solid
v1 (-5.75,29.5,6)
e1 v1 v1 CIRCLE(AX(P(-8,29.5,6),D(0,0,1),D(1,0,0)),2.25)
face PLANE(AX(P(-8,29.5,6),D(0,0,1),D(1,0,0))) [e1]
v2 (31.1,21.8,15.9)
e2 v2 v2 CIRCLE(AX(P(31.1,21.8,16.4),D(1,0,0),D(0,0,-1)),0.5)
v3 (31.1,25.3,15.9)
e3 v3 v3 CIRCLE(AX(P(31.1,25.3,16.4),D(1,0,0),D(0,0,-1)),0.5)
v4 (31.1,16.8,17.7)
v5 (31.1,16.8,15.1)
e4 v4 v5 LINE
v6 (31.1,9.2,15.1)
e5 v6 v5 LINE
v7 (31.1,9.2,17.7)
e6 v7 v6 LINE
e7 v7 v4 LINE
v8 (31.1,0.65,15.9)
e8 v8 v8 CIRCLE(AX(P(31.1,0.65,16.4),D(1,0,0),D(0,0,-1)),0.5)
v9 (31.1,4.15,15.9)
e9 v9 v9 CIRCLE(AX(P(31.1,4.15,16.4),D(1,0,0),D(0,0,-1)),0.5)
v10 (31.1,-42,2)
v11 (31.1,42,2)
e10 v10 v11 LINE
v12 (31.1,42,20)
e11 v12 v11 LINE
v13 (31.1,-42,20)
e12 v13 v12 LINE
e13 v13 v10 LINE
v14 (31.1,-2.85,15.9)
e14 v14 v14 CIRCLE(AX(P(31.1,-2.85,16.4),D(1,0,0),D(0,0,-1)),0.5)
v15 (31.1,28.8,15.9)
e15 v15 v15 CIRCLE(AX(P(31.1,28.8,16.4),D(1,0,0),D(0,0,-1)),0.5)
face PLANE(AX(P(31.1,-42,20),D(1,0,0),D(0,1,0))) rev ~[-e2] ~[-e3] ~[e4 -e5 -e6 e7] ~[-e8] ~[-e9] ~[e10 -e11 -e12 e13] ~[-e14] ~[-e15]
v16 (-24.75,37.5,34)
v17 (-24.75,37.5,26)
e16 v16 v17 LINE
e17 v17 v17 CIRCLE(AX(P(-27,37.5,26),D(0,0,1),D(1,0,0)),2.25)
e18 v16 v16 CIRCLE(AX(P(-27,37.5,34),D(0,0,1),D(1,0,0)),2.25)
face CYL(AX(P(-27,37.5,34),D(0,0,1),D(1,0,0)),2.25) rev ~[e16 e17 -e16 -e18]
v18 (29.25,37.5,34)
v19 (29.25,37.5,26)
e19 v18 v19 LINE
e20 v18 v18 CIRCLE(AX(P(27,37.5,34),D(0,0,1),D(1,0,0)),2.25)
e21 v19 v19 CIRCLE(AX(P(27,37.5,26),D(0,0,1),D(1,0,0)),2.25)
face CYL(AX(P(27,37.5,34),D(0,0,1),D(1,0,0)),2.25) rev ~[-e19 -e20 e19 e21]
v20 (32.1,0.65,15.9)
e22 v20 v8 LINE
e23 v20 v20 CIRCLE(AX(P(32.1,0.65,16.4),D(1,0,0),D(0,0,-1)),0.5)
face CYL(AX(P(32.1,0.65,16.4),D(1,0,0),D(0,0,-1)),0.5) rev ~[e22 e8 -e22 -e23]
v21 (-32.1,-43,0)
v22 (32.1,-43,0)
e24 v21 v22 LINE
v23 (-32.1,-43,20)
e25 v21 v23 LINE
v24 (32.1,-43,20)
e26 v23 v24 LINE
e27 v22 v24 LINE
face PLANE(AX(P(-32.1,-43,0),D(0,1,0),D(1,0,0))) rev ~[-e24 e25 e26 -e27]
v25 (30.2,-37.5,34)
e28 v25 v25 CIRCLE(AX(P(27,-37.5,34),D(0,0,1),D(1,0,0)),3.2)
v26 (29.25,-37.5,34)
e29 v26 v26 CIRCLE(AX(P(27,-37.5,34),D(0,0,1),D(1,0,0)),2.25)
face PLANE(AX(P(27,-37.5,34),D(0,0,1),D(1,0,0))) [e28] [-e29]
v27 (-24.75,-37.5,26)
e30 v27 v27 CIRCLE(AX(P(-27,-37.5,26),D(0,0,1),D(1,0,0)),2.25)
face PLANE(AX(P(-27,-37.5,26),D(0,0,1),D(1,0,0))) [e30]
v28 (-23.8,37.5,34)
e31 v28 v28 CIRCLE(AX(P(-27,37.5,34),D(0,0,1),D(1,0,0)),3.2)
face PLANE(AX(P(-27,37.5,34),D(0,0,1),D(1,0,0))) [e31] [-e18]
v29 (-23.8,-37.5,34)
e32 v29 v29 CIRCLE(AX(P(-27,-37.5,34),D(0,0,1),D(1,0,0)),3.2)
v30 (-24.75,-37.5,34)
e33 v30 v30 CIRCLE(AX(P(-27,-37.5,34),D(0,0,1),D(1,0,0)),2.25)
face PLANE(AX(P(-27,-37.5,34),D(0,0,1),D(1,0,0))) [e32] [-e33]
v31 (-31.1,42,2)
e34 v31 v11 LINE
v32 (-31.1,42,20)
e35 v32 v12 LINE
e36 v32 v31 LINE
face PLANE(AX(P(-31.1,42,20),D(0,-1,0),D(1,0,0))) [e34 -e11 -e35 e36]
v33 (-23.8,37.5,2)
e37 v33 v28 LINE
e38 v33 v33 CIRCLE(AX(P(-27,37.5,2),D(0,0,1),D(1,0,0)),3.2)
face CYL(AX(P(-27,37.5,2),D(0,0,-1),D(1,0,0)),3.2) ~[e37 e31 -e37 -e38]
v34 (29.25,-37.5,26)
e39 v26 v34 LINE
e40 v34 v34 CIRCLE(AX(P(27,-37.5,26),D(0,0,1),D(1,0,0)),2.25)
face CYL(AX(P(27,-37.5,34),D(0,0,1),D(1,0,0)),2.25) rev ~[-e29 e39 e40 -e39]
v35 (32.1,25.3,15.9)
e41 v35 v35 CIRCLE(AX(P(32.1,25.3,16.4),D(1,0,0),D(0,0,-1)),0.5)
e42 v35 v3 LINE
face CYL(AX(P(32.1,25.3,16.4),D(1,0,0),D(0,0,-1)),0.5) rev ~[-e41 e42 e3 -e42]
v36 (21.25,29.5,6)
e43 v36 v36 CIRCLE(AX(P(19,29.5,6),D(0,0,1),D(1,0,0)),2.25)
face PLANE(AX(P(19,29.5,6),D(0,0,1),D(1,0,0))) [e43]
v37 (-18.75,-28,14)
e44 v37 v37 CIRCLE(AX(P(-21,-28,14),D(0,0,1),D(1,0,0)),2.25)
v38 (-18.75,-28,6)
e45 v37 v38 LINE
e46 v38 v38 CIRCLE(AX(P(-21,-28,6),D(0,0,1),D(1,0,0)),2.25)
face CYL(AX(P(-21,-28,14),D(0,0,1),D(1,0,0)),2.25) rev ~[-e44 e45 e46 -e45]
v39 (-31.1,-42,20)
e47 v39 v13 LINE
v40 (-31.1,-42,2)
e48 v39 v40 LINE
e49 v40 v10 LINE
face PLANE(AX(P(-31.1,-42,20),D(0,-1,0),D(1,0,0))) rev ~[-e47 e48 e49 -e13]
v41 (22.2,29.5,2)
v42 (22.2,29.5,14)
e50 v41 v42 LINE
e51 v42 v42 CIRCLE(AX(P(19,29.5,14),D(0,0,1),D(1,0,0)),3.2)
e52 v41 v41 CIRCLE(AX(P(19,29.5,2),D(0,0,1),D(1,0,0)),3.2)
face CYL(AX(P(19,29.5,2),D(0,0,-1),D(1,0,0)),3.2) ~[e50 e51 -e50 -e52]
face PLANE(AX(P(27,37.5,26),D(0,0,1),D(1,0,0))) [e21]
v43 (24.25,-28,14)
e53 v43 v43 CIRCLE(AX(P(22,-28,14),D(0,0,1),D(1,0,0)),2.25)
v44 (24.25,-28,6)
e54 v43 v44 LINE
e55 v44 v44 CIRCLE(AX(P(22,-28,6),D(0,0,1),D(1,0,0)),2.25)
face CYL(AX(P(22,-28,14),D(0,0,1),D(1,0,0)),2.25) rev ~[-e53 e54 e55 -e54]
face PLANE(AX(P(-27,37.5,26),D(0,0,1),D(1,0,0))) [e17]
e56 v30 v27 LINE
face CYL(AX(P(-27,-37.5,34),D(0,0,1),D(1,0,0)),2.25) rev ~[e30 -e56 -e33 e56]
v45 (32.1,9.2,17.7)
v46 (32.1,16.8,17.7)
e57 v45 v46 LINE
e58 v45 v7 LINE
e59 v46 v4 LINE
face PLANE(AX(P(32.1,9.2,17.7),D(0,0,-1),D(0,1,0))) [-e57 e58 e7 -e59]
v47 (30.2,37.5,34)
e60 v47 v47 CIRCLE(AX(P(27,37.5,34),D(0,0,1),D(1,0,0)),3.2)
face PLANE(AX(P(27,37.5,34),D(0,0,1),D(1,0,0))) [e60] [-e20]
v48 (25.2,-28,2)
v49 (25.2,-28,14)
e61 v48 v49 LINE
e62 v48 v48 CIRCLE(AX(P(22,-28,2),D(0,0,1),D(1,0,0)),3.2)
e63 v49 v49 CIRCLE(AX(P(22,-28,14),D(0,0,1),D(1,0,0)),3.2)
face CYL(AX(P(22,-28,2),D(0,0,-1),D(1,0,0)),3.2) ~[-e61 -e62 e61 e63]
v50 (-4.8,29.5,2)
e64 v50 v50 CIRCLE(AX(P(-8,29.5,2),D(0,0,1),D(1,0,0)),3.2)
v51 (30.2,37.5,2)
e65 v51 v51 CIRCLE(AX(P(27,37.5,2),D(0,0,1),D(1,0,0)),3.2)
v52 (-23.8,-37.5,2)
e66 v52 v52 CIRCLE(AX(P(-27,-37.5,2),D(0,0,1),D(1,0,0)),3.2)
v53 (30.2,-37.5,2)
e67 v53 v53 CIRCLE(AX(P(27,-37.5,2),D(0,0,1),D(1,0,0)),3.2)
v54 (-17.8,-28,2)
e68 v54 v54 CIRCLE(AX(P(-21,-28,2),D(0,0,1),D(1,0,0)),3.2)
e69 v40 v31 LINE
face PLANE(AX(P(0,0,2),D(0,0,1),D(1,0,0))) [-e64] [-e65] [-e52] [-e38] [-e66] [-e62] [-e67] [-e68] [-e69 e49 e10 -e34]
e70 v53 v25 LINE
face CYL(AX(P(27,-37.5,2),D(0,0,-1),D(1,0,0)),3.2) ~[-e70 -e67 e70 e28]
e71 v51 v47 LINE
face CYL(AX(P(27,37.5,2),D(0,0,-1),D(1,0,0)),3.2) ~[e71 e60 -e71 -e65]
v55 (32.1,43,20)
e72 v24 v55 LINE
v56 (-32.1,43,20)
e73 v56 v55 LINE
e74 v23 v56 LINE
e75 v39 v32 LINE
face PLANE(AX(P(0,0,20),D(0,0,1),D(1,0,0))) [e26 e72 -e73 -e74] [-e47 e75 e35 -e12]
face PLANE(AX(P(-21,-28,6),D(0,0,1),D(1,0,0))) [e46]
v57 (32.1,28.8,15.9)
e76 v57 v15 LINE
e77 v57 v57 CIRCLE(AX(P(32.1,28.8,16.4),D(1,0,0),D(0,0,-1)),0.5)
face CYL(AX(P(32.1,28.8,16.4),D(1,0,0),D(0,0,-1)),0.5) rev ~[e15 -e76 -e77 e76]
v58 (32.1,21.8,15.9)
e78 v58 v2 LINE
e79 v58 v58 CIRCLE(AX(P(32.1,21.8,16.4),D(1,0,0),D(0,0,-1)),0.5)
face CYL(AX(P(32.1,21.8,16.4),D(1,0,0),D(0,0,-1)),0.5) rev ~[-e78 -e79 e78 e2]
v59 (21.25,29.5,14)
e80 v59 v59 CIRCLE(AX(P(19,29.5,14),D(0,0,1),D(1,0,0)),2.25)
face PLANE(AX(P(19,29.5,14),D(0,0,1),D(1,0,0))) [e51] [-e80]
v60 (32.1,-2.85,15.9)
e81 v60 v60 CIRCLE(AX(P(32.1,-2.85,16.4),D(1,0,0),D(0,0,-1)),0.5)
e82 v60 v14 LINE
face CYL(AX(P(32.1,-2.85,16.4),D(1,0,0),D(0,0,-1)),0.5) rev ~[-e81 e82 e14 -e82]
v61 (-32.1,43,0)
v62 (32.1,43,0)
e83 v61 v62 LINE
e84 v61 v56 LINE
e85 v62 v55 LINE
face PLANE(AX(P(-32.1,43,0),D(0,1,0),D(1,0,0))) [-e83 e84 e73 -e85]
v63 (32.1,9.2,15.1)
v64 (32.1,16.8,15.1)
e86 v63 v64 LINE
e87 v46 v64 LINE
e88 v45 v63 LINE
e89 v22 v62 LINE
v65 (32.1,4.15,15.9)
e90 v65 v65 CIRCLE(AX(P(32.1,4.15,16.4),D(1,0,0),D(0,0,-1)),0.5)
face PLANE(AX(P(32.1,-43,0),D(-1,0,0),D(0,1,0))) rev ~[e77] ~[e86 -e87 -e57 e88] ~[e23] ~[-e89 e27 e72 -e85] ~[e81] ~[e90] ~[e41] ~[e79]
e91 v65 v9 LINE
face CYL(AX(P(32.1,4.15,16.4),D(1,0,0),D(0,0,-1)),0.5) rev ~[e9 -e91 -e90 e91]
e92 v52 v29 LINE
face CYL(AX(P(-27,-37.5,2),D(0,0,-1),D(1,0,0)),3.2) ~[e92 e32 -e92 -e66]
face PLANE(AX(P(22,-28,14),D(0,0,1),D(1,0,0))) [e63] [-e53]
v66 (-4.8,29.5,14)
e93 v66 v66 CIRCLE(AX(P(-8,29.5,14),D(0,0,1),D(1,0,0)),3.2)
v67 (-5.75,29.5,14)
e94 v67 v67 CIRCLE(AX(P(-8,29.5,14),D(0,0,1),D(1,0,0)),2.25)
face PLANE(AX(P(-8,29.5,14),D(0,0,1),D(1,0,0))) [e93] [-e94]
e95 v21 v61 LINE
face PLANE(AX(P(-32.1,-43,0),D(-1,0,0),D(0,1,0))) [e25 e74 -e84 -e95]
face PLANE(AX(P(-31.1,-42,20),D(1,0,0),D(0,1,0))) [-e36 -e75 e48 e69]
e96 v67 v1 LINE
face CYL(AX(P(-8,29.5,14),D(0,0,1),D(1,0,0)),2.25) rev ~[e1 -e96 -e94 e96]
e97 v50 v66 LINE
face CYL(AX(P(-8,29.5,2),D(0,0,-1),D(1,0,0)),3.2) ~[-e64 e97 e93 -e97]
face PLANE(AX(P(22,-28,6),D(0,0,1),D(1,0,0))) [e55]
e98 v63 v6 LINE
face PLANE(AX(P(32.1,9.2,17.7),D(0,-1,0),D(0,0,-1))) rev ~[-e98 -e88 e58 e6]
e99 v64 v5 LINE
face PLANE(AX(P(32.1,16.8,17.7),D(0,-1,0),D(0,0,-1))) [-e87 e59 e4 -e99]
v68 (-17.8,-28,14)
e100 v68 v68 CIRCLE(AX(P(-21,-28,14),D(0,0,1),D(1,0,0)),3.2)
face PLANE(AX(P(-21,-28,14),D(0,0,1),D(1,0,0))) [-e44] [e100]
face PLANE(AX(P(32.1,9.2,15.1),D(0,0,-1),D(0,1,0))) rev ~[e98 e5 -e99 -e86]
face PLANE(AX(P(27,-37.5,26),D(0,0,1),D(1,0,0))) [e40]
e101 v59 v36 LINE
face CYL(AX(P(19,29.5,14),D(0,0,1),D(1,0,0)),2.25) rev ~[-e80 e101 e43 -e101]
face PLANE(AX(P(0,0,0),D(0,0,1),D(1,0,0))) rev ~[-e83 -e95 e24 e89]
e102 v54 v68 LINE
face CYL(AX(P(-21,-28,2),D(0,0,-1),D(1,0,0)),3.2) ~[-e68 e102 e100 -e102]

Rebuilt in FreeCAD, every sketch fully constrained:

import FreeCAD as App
import Part
import Sketcher
from FreeCAD import Vector
Q = App.Units.Quantity


def add_polygon(sketch, points):
    """Adds a closed chain of lines whose ends are joined by coincident constraints."""
    first, n = sketch.GeometryCount, len(points)
    for a, b in zip(points, points[1:] + points[:1]):
        sketch.addGeometry(Part.LineSegment(App.Vector(*a, 0), App.Vector(*b, 0)), False)
    for i in range(n):
        sketch.addConstraint(Sketcher.Constraint("Coincident", first + i, 2, first + (i + 1) % n, 1))

doc = App.newDocument("Part")
body = doc.addObject("PartDesign::Body", "Body")

# Sketch on XY plane
sketch1 = body.newObject("Sketcher::SketchObject", "Sketch")
sketch1.AttachmentSupport = (doc.getObject("XY_Plane"), [""])
sketch1.MapMode = "FlatFace"
add_polygon(sketch1, [(-32, 43), (-32, -43), (32, -43), (32, 43)])  # lines 0-3
sketch1.addConstraint(Sketcher.Constraint("Vertical", 0))
sketch1.addConstraint(Sketcher.Constraint("Horizontal", 1))
sketch1.addConstraint(Sketcher.Constraint("Vertical", 2))
sketch1.addConstraint(Sketcher.Constraint("Horizontal", 3))
sketch1.addConstraint(Sketcher.Constraint("Symmetric", 0, 2, 2, 2, -1, 1))
sketch1.addConstraint(Sketcher.Constraint("DistanceY", 0, 2, 0, 1, Q("86 mm")))
sketch1.addConstraint(Sketcher.Constraint("DistanceX", 1, 1, 1, 2, Q("64.2 mm")))
pad1 = body.newObject("PartDesign::Pad", "Pad")
pad1.Profile = sketch1
pad1.Length = 20

# Sketch on XY plane
sketch2 = body.newObject("Sketcher::SketchObject", "Sketch001")
sketch2.AttachmentSupport = (doc.getObject("XY_Plane"), [""])
sketch2.MapMode = "FlatFace"
sketch2.AttachmentOffset = App.Placement(Vector(0, 0, 20), App.Rotation())
add_polygon(sketch2, [(-31, 42), (-31, -42), (31, -42), (31, 42)])  # lines 0-3
sketch2.addConstraint(Sketcher.Constraint("Vertical", 0))
sketch2.addConstraint(Sketcher.Constraint("Horizontal", 1))
sketch2.addConstraint(Sketcher.Constraint("Vertical", 2))
sketch2.addConstraint(Sketcher.Constraint("Horizontal", 3))
sketch2.addConstraint(Sketcher.Constraint("Symmetric", 0, 2, 2, 2, -1, 1))
sketch2.addConstraint(Sketcher.Constraint("DistanceY", 0, 2, 0, 1, Q("84 mm")))
sketch2.addConstraint(Sketcher.Constraint("DistanceX", 1, 1, 1, 2, Q("62.2 mm")))
pocket1 = body.newObject("PartDesign::Pocket", "Pocket")
pocket1.Profile = sketch2
pocket1.Length = 18

# Sketch on XY plane
sketch3 = body.newObject("Sketcher::SketchObject", "Sketch002")
sketch3.AttachmentSupport = (doc.getObject("XY_Plane"), [""])
sketch3.MapMode = "FlatFace"
sketch3.AttachmentOffset = App.Placement(Vector(0, 0, 2), App.Rotation())
sketch3.addGeometry(Part.Circle(Vector(-21, -28, 0), Vector(0, 0, 1), 3.2), False)
sketch3.addGeometry(Part.Circle(Vector(22, -28, 0), Vector(0, 0, 1), 3.2), False)
sketch3.addGeometry(Part.Circle(Vector(19, 29.5, 0), Vector(0, 0, 1), 3.2), False)
sketch3.addGeometry(Part.Circle(Vector(-8, 29.5, 0), Vector(0, 0, 1), 3.2), False)
sketch3.addConstraint(Sketcher.Constraint("Equal", 0, 1))
sketch3.addConstraint(Sketcher.Constraint("Equal", 1, 2))
sketch3.addConstraint(Sketcher.Constraint("Equal", 2, 3))
sketch3.addConstraint(Sketcher.Constraint("Horizontal", 0, 3, 1, 3))
sketch3.addConstraint(Sketcher.Constraint("Horizontal", 2, 3, 3, 3))
sketch3.addConstraint(Sketcher.Constraint("Diameter", 0, Q("6.4 mm")))
sketch3.addConstraint(Sketcher.Constraint("DistanceX", 0, 3, -1, 1, Q("21 mm")))
sketch3.addConstraint(Sketcher.Constraint("DistanceY", 0, 3, -1, 1, Q("28 mm")))
sketch3.addConstraint(Sketcher.Constraint("DistanceX", -1, 1, 1, 3, Q("22 mm")))
sketch3.addConstraint(Sketcher.Constraint("DistanceX", -1, 1, 2, 3, Q("19 mm")))
sketch3.addConstraint(Sketcher.Constraint("DistanceX", 3, 3, -1, 1, Q("8 mm")))
sketch3.addConstraint(Sketcher.Constraint("DistanceY", -1, 1, 2, 3, Q("29.5 mm")))
pad2 = body.newObject("PartDesign::Pad", "Pad001")
pad2.Profile = sketch3
pad2.Length = 12

# Sketch on XY plane
sketch4 = body.newObject("Sketcher::SketchObject", "Sketch003")
sketch4.AttachmentSupport = (doc.getObject("XY_Plane"), [""])
sketch4.MapMode = "FlatFace"
sketch4.AttachmentOffset = App.Placement(Vector(0, 0, 14), App.Rotation())
sketch4.addGeometry(Part.Circle(Vector(-21, -28, 0), Vector(0, 0, 1), 2.2), False)
sketch4.addGeometry(Part.Circle(Vector(-8, 29.5, 0), Vector(0, 0, 1), 2.2), False)
sketch4.addGeometry(Part.Circle(Vector(19, 29.5, 0), Vector(0, 0, 1), 2.2), False)
sketch4.addGeometry(Part.Circle(Vector(22, -28, 0), Vector(0, 0, 1), 2.2), False)
sketch4.addConstraint(Sketcher.Constraint("Equal", 0, 1))
sketch4.addConstraint(Sketcher.Constraint("Equal", 1, 2))
sketch4.addConstraint(Sketcher.Constraint("Equal", 2, 3))
sketch4.addConstraint(Sketcher.Constraint("Horizontal", 1, 3, 2, 3))
sketch4.addConstraint(Sketcher.Constraint("Horizontal", 0, 3, 3, 3))
sketch4.addConstraint(Sketcher.Constraint("Diameter", 0, Q("4.5 mm")))
sketch4.addConstraint(Sketcher.Constraint("DistanceX", 0, 3, -1, 1, Q("21 mm")))
sketch4.addConstraint(Sketcher.Constraint("DistanceY", 0, 3, -1, 1, Q("28 mm")))
sketch4.addConstraint(Sketcher.Constraint("DistanceX", 1, 3, -1, 1, Q("8 mm")))
sketch4.addConstraint(Sketcher.Constraint("DistanceX", -1, 1, 2, 3, Q("19 mm")))
sketch4.addConstraint(Sketcher.Constraint("DistanceX", -1, 1, 3, 3, Q("22 mm")))
sketch4.addConstraint(Sketcher.Constraint("DistanceY", -1, 1, 1, 3, Q("29.5 mm")))
pocket2 = body.newObject("PartDesign::Pocket", "Pocket001")
pocket2.Profile = sketch4
pocket2.Length = 8

# Sketch on XY plane
sketch5 = body.newObject("Sketcher::SketchObject", "Sketch004")
sketch5.AttachmentSupport = (doc.getObject("XY_Plane"), [""])
sketch5.MapMode = "FlatFace"
sketch5.AttachmentOffset = App.Placement(Vector(0, 0, 2), App.Rotation())
sketch5.addGeometry(Part.Circle(Vector(-27, -37.5, 0), Vector(0, 0, 1), 3.2), False)
sketch5.addGeometry(Part.Circle(Vector(27, -37.5, 0), Vector(0, 0, 1), 3.2), False)
sketch5.addGeometry(Part.Circle(Vector(-27, 37.5, 0), Vector(0, 0, 1), 3.2), False)
sketch5.addGeometry(Part.Circle(Vector(27, 37.5, 0), Vector(0, 0, 1), 3.2), False)
sketch5.addConstraint(Sketcher.Constraint("Equal", 0, 1))
sketch5.addConstraint(Sketcher.Constraint("Equal", 1, 2))
sketch5.addConstraint(Sketcher.Constraint("Equal", 2, 3))
sketch5.addConstraint(Sketcher.Constraint("Symmetric", 1, 3, 2, 3, -1, 1))
sketch5.addConstraint(Sketcher.Constraint("Symmetric", 0, 3, 3, 3, -1, 1))
sketch5.addConstraint(Sketcher.Constraint("Symmetric", 0, 3, 1, 3, -2))
sketch5.addConstraint(Sketcher.Constraint("Diameter", 0, Q("6.4 mm")))
sketch5.addConstraint(Sketcher.Constraint("DistanceX", 0, 3, -1, 1, Q("27 mm")))
sketch5.addConstraint(Sketcher.Constraint("DistanceY", 0, 3, 2, 3, Q("75 mm")))
pad3 = body.newObject("PartDesign::Pad", "Pad002")
pad3.Profile = sketch5
pad3.Length = 32

# Sketch on XY plane
sketch6 = body.newObject("Sketcher::SketchObject", "Sketch005")
sketch6.AttachmentSupport = (doc.getObject("XY_Plane"), [""])
sketch6.MapMode = "FlatFace"
sketch6.AttachmentOffset = App.Placement(Vector(0, 0, 34), App.Rotation())
sketch6.addGeometry(Part.Circle(Vector(-27, 37.5, 0), Vector(0, 0, 1), 2.2), False)
sketch6.addGeometry(Part.Circle(Vector(27, 37.5, 0), Vector(0, 0, 1), 2.2), False)
sketch6.addGeometry(Part.Circle(Vector(27, -37.5, 0), Vector(0, 0, 1), 2.2), False)
sketch6.addGeometry(Part.Circle(Vector(-27, -37.5, 0), Vector(0, 0, 1), 2.2), False)
sketch6.addConstraint(Sketcher.Constraint("Equal", 0, 1))
sketch6.addConstraint(Sketcher.Constraint("Equal", 1, 2))
sketch6.addConstraint(Sketcher.Constraint("Equal", 2, 3))
sketch6.addConstraint(Sketcher.Constraint("Symmetric", 0, 3, 2, 3, -1, 1))
sketch6.addConstraint(Sketcher.Constraint("Symmetric", 1, 3, 3, 3, -1, 1))
sketch6.addConstraint(Sketcher.Constraint("Symmetric", 0, 3, 1, 3, -2))
sketch6.addConstraint(Sketcher.Constraint("Diameter", 0, Q("4.5 mm")))
sketch6.addConstraint(Sketcher.Constraint("DistanceX", 0, 3, -1, 1, Q("27 mm")))
sketch6.addConstraint(Sketcher.Constraint("DistanceY", 2, 3, 1, 3, Q("75 mm")))
pocket3 = body.newObject("PartDesign::Pocket", "Pocket002")
pocket3.Profile = sketch6
pocket3.Length = 8

# Sketch on YZ plane
sketch7 = body.newObject("Sketcher::SketchObject", "Sketch006")
sketch7.AttachmentSupport = (doc.getObject("YZ_Plane"), [""])
sketch7.MapMode = "FlatFace"
sketch7.AttachmentOffset = App.Placement(Vector(0, 0, 32.1), App.Rotation())
sketch7.addGeometry(Part.Circle(Vector(21.8, 16.4, 0), Vector(0, 0, 1), 0.5), False)  # 0
sketch7.addGeometry(Part.Circle(Vector(25.3, 16.4, 0), Vector(0, 0, 1), 0.5), False)  # 1
sketch7.addGeometry(Part.Circle(Vector(28.8, 16.4, 0), Vector(0, 0, 1), 0.5), False)  # 2
sketch7.addGeometry(Part.Circle(Vector(0.7, 16.4, 0), Vector(0, 0, 1), 0.5), False)  # 3
sketch7.addGeometry(Part.Circle(Vector(4.2, 16.4, 0), Vector(0, 0, 1), 0.5), False)  # 4
sketch7.addGeometry(Part.Circle(Vector(-2.9, 16.4, 0), Vector(0, 0, 1), 0.5), False)  # 5
add_polygon(sketch7, [(16.8, 17.7), (9.2, 17.7), (9.2, 15.1), (16.8, 15.1)])  # lines 6-9
sketch7.addConstraint(Sketcher.Constraint("Horizontal", 6))
sketch7.addConstraint(Sketcher.Constraint("Vertical", 7))
sketch7.addConstraint(Sketcher.Constraint("Horizontal", 8))
sketch7.addConstraint(Sketcher.Constraint("Vertical", 9))
sketch7.addConstraint(Sketcher.Constraint("Equal", 0, 1))
sketch7.addConstraint(Sketcher.Constraint("Equal", 1, 2))
sketch7.addConstraint(Sketcher.Constraint("Equal", 2, 3))
sketch7.addConstraint(Sketcher.Constraint("Equal", 3, 4))
sketch7.addConstraint(Sketcher.Constraint("Equal", 4, 5))
sketch7.addConstraint(Sketcher.Constraint("Horizontal", 0, 3, 1, 3))
sketch7.addConstraint(Sketcher.Constraint("Horizontal", 1, 3, 2, 3))
sketch7.addConstraint(Sketcher.Constraint("Horizontal", 2, 3, 3, 3))
sketch7.addConstraint(Sketcher.Constraint("Horizontal", 3, 3, 4, 3))
sketch7.addConstraint(Sketcher.Constraint("Horizontal", 4, 3, 5, 3))
sketch7.addConstraint(Sketcher.Constraint("Diameter", 0, Q("1 mm")))
sketch7.addConstraint(Sketcher.Constraint("DistanceX", 6, 2, 6, 1, Q("7.6 mm")))
sketch7.addConstraint(Sketcher.Constraint("DistanceY", 7, 2, 7, 1, Q("2.6 mm")))
sketch7.addConstraint(Sketcher.Constraint("DistanceX", 0, 3, 2, 3, Q("7 mm")))
sketch7.addConstraint(Sketcher.Constraint("DistanceX", 5, 3, 4, 3, Q("7 mm")))
sketch7.addConstraint(Sketcher.Constraint("DistanceX", 8, 2, 0, 3, Q("5 mm")))
sketch7.addConstraint(Sketcher.Constraint("DistanceX", -1, 1, 0, 3, Q("21.8 mm")))
sketch7.addConstraint(Sketcher.Constraint("DistanceY", -1, 1, 0, 3, Q("16.4 mm")))
sketch7.addConstraint(Sketcher.Constraint("DistanceX", -1, 1, 1, 3, Q("25.3 mm")))
sketch7.addConstraint(Sketcher.Constraint("DistanceY", -1, 1, 6, 2, Q("17.7 mm")))
sketch7.addConstraint(Sketcher.Constraint("DistanceX", 3, 3, 4, 3, Q("3.5 mm")))
sketch7.addConstraint(Sketcher.Constraint("DistanceX", -1, 1, 3, 3, Q("0.65 mm")))
pocket4 = body.newObject("PartDesign::Pocket", "Pocket003")
pocket4.Profile = sketch7
pocket4.Length = 2

doc.recompute()
